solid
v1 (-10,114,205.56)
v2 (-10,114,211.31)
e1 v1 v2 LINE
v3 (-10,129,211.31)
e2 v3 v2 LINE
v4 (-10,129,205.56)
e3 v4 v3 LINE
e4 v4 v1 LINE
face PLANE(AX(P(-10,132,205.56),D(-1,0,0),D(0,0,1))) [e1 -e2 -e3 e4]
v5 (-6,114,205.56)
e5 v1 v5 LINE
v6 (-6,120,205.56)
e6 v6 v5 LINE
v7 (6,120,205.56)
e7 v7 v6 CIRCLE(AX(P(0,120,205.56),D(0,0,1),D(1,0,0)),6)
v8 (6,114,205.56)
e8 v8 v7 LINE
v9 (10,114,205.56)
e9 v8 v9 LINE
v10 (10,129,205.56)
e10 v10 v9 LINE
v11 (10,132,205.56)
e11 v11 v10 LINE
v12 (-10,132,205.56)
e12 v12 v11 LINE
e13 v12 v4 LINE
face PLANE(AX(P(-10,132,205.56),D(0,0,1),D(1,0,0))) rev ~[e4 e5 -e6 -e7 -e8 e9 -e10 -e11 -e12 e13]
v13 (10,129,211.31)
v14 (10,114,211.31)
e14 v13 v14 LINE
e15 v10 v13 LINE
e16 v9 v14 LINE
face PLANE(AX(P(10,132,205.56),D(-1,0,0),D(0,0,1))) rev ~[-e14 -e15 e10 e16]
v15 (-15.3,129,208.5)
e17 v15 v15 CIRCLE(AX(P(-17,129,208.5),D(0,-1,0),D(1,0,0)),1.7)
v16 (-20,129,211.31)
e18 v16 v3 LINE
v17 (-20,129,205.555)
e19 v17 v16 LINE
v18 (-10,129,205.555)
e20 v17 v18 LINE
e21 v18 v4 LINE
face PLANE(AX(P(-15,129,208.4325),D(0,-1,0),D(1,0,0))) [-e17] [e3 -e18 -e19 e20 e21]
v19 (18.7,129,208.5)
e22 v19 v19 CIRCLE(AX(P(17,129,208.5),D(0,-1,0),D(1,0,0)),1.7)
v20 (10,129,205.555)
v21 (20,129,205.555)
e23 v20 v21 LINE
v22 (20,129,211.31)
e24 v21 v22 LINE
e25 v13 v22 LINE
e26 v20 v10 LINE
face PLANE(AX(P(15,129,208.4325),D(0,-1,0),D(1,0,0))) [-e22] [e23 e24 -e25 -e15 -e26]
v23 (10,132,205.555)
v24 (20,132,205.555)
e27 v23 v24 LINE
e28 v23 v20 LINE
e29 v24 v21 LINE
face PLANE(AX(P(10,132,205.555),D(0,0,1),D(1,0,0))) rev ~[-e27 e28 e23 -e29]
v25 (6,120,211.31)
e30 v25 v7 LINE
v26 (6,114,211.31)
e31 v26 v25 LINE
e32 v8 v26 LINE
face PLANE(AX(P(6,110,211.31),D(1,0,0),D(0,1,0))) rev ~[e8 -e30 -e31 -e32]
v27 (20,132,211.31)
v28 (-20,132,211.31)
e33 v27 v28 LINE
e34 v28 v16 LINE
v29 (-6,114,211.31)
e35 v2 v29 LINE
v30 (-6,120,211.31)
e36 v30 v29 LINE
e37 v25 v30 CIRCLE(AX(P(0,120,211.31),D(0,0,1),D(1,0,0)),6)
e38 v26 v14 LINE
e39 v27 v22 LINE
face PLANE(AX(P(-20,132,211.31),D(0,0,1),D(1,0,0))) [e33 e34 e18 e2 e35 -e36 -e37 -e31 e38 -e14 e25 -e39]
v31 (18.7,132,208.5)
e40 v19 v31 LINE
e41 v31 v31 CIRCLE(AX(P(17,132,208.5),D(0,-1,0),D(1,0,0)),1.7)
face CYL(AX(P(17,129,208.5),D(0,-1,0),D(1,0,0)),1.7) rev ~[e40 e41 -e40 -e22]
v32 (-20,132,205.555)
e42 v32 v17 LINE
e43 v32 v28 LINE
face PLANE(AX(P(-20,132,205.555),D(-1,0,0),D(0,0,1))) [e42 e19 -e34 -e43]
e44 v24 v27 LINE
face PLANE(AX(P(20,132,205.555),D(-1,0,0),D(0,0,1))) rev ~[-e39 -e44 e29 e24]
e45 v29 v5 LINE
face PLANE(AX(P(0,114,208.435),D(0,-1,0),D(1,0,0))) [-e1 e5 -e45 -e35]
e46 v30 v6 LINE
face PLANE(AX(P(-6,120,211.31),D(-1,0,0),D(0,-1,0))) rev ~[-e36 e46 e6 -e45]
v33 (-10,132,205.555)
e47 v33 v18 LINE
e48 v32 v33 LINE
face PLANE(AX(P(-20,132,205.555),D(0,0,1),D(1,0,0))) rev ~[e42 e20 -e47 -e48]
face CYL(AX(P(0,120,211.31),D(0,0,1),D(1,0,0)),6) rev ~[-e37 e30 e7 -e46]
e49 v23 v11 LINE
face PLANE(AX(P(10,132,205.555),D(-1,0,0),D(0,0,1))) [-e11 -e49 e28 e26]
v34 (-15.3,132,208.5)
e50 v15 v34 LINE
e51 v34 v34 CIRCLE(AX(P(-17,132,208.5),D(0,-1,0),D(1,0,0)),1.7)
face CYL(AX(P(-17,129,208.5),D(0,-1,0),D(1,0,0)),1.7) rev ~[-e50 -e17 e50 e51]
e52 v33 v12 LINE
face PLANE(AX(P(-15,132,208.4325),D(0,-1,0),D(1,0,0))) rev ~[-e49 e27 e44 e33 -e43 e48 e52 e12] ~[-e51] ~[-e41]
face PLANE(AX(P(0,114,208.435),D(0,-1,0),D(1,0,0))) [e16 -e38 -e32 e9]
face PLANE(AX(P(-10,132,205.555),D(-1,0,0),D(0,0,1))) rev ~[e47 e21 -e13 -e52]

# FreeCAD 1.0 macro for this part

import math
import FreeCAD as App
import Part
import Sketcher

doc = App.newDocument("Part")
body = doc.addObject("PartDesign::Body", "Body")

# Sketch on XZ plane
sketch1 = body.newObject("Sketcher::SketchObject", "Sketch")
sketch1.AttachmentSupport = (doc.getObject("XZ_Plane"), [""])
sketch1.MapMode = "FlatFace"
sketch1.addGeometry(Part.LineSegment(App.Vector(-10, 211.31, 0), App.Vector(-10, 205.56, 0)), False)
sketch1.addGeometry(Part.LineSegment(App.Vector(-10, 205.56, 0), App.Vector(10, 205.56, 0)), False)
sketch1.addGeometry(Part.LineSegment(App.Vector(10, 205.56, 0), App.Vector(10, 211.31, 0)), False)
sketch1.addGeometry(Part.LineSegment(App.Vector(10, 211.31, 0), App.Vector(-10, 211.31, 0)), False)
sketch1.addConstraint(Sketcher.Constraint("Coincident", 0, 2, 1, 1))
sketch1.addConstraint(Sketcher.Constraint("Coincident", 1, 2, 2, 1))
sketch1.addConstraint(Sketcher.Constraint("Coincident", 2, 2, 3, 1))
sketch1.addConstraint(Sketcher.Constraint("Coincident", 3, 2, 0, 1))
sketch1.addConstraint(Sketcher.Constraint("Vertical", 0))
sketch1.addConstraint(Sketcher.Constraint("Horizontal", 1))
sketch1.addConstraint(Sketcher.Constraint("Vertical", 2))
sketch1.addConstraint(Sketcher.Constraint("Horizontal", 3))
sketch1.addConstraint(Sketcher.Constraint("DistanceX", 1, 1, 1, 2, 20.0))
sketch1.addConstraint(Sketcher.Constraint("DistanceX", 0, 2, -1, 1, 10.0))
sketch1.addConstraint(Sketcher.Constraint("DistanceY", 0, 2, 0, 1, 5.75))
sketch1.addConstraint(Sketcher.Constraint("DistanceY", -1, 1, 0, 2, 205.56))
pad1 = body.newObject("PartDesign::Pad", "Pad")
pad1.Profile = sketch1
pad1.Length = 18

# Sketch on XY plane
sketch2 = body.newObject("Sketcher::SketchObject", "Sketch001")
sketch2.AttachmentSupport = (doc.getObject("XY_Plane"), [""])
sketch2.MapMode = "FlatFace"
sketch2.AttachmentOffset = App.Placement(App.Vector(0, 0, 211.31), App.Rotation())
sketch2.addGeometry(Part.ArcOfCircle(Part.Circle(App.Vector(0, -12, 0), App.Vector(0, 0, 1), 6), math.radians(0), math.radians(180)), False)
sketch2.addGeometry(Part.LineSegment(App.Vector(-6, -12, 0), App.Vector(-6, -22, 0)), False)
sketch2.addGeometry(Part.LineSegment(App.Vector(-6, -22, 0), App.Vector(6, -22, 0)), False)
sketch2.addGeometry(Part.LineSegment(App.Vector(6, -22, 0), App.Vector(6, -12, 0)), False)
sketch2.addConstraint(Sketcher.Constraint("Tangent", 0, 2, 1, 1))
sketch2.addConstraint(Sketcher.Constraint("Coincident", 1, 2, 2, 1))
sketch2.addConstraint(Sketcher.Constraint("Coincident", 2, 2, 3, 1))
sketch2.addConstraint(Sketcher.Constraint("Tangent", 3, 2, 0, 1))
sketch2.addConstraint(Sketcher.Constraint("Vertical", 1))
sketch2.addConstraint(Sketcher.Constraint("Horizontal", 2))
sketch2.addConstraint(Sketcher.Constraint("Vertical", 3))
sketch2.addConstraint(Sketcher.Constraint("PointOnObject", 0, 3, -2))
sketch2.addConstraint(Sketcher.Constraint("Radius", 0, 6.0))
sketch2.addConstraint(Sketcher.Constraint("DistanceY", 1, 2, 1, 1, 10.0))
sketch2.addConstraint(Sketcher.Constraint("DistanceY", 0, 3, -1, 1, 12.0))
pocket1 = body.newObject("PartDesign::Pocket", "Pocket")
pocket1.Profile = sketch2
pocket1.Type = "ThroughAll"

# Sketch on XZ plane
sketch3 = body.newObject("Sketcher::SketchObject", "Sketch002")
sketch3.AttachmentSupport = (doc.getObject("XZ_Plane"), [""])
sketch3.MapMode = "FlatFace"
sketch3.addGeometry(Part.LineSegment(App.Vector(-20, 211.31, 0), App.Vector(-20, 205.555, 0)), False)
sketch3.addGeometry(Part.LineSegment(App.Vector(-20, 205.555, 0), App.Vector(-10, 205.555, 0)), False)
sketch3.addGeometry(Part.LineSegment(App.Vector(-10, 205.555, 0), App.Vector(-10, 211.31, 0)), False)
sketch3.addGeometry(Part.LineSegment(App.Vector(-10, 211.31, 0), App.Vector(-20, 211.31, 0)), False)
sketch3.addGeometry(Part.LineSegment(App.Vector(10, 211.31, 0), App.Vector(10, 205.555, 0)), False)
sketch3.addGeometry(Part.LineSegment(App.Vector(10, 205.555, 0), App.Vector(20, 205.555, 0)), False)
sketch3.addGeometry(Part.LineSegment(App.Vector(20, 205.555, 0), App.Vector(20, 211.31, 0)), False)
sketch3.addGeometry(Part.LineSegment(App.Vector(20, 211.31, 0), App.Vector(10, 211.31, 0)), False)
sketch3.addConstraint(Sketcher.Constraint("Coincident", 0, 2, 1, 1))
sketch3.addConstraint(Sketcher.Constraint("Coincident", 1, 2, 2, 1))
sketch3.addConstraint(Sketcher.Constraint("Coincident", 2, 2, 3, 1))
sketch3.addConstraint(Sketcher.Constraint("Coincident", 3, 2, 0, 1))
sketch3.addConstraint(Sketcher.Constraint("Coincident", 4, 2, 5, 1))
sketch3.addConstraint(Sketcher.Constraint("Coincident", 5, 2, 6, 1))
sketch3.addConstraint(Sketcher.Constraint("Coincident", 6, 2, 7, 1))
sketch3.addConstraint(Sketcher.Constraint("Coincident", 7, 2, 4, 1))
sketch3.addConstraint(Sketcher.Constraint("Vertical", 0))
sketch3.addConstraint(Sketcher.Constraint("Horizontal", 1))
sketch3.addConstraint(Sketcher.Constraint("Vertical", 2))
sketch3.addConstraint(Sketcher.Constraint("Horizontal", 3))
sketch3.addConstraint(Sketcher.Constraint("Vertical", 4))
sketch3.addConstraint(Sketcher.Constraint("Horizontal", 5))
sketch3.addConstraint(Sketcher.Constraint("Vertical", 6))
sketch3.addConstraint(Sketcher.Constraint("Horizontal", 7))
sketch3.addConstraint(Sketcher.Constraint("Symmetric", 1, 2, 4, 2, -2))
sketch3.addConstraint(Sketcher.Constraint("Symmetric", 3, 2, 6, 2, -2))
sketch3.addConstraint(Sketcher.Constraint("DistanceX", 1, 1, 1, 2, 10.0))
sketch3.addConstraint(Sketcher.Constraint("DistanceX", 0, 2, -1, 1, 20.0))
sketch3.addConstraint(Sketcher.Constraint("DistanceY", 0, 2, 0, 1, 5.755))
sketch3.addConstraint(Sketcher.Constraint("DistanceY", -1, 1, 2, 2, 211.31))
pad2 = body.newObject("PartDesign::Pad", "Pad001")
pad2.Profile = sketch3
pad2.Length = 3

# Sketch on XZ plane
sketch4 = body.newObject("Sketcher::SketchObject", "Sketch003")
sketch4.AttachmentSupport = (doc.getObject("XZ_Plane"), [""])
sketch4.MapMode = "FlatFace"
sketch4.AttachmentOffset = App.Placement(App.Vector(0, 0, 3), App.Rotation())
sketch4.addGeometry(Part.Circle(App.Vector(-17, 208.5, 0), App.Vector(0, 0, 1), 1.7), False)
sketch4.addGeometry(Part.Circle(App.Vector(17, 208.5, 0), App.Vector(0, 0, 1), 1.7), False)
sketch4.addConstraint(Sketcher.Constraint("Equal", 0, 1))
sketch4.addConstraint(Sketcher.Constraint("Symmetric", 0, 3, 1, 3, -2))
sketch4.addConstraint(Sketcher.Constraint("Diameter", 0, 3.4))
sketch4.addConstraint(Sketcher.Constraint("DistanceX", 0, 3, -1, 1, 17.0))
sketch4.addConstraint(Sketcher.Constraint("DistanceY", -1, 1, 0, 3, 208.5))
pocket2 = body.newObject("PartDesign::Pocket", "Pocket001")
pocket2.Profile = sketch4
pocket2.Length = 25
body2 = doc.addObject("PartDesign::Body", "Body001")
doc.recompute()

body.Placement = App.Placement(App.Vector(0, 132, 0), App.Rotation(App.Vector(0, 0, 1), 0))
boolean = body2.newObject("PartDesign::Boolean", "Boolean")
boolean.Type = "Fuse"
boolean.addObjects([body])

doc.recompute()
